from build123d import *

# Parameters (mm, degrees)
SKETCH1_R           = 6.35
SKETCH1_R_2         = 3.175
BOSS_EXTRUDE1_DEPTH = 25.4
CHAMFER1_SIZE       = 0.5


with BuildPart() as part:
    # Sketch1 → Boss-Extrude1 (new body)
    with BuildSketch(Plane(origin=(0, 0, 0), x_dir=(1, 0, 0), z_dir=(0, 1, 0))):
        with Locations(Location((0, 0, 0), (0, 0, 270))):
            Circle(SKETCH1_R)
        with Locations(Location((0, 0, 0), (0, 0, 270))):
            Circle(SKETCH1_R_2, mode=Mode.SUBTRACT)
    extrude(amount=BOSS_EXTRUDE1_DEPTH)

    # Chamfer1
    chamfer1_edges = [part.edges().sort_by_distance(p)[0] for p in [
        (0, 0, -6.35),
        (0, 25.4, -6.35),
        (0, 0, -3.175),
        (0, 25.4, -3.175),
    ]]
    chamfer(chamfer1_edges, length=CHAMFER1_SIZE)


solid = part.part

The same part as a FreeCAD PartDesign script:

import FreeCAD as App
import Part
import Sketcher
Q = App.Units.Quantity


def edges_at(feature, points):
    """Names of the edges that pass closest to the given points."""
    edges = feature.Shape.Edges
    near = lambda p: min(range(len(edges)), key=lambda i: edges[i].distToShape(Part.Vertex(*p))[0])
    return sorted({f"Edge{near(p) + 1}" for p in points})

doc = App.newDocument("Part")
body = doc.addObject("PartDesign::Body", "Body")

sketch1 = body.newObject("Sketcher::SketchObject", "Sketch")
sketch1.AttachmentSupport = (doc.getObject("XZ_Plane"), [""])
sketch1.MapMode = "FlatFace"
sketch1.addGeometry(Part.Circle(App.Vector(0, 0, 0), App.Vector(0, 0, 1), 6.35), False)
sketch1.addGeometry(Part.Circle(App.Vector(0, 0, 0), App.Vector(0, 0, 1), 3.175), False)
sketch1.addConstraint(Sketcher.Constraint("Coincident", 0, 3, -1, 1))
sketch1.addConstraint(Sketcher.Constraint("Coincident", 1, 3, -1, 1))
sketch1.addConstraint(Sketcher.Constraint("Diameter", 0, Q("0.5 in")))
sketch1.addConstraint(Sketcher.Constraint("Diameter", 1, Q("0.25 in")))
pad1 = body.newObject("PartDesign::Pad", "Pad")
pad1.Profile = sketch1
pad1.Length = Q("1 in")
pad1.Reversed = True
doc.recompute()

chamfer = body.newObject("PartDesign::Chamfer", "Chamfer")
chamfer.Base = (pad1, edges_at(pad1, [
    (0, 0, -6.35),
    (0, 25.4, -6.35),
    (0, 0, -3.175),
    (0, 25.4, -3.175),
]))
chamfer.Size = 0.5

doc.recompute()
